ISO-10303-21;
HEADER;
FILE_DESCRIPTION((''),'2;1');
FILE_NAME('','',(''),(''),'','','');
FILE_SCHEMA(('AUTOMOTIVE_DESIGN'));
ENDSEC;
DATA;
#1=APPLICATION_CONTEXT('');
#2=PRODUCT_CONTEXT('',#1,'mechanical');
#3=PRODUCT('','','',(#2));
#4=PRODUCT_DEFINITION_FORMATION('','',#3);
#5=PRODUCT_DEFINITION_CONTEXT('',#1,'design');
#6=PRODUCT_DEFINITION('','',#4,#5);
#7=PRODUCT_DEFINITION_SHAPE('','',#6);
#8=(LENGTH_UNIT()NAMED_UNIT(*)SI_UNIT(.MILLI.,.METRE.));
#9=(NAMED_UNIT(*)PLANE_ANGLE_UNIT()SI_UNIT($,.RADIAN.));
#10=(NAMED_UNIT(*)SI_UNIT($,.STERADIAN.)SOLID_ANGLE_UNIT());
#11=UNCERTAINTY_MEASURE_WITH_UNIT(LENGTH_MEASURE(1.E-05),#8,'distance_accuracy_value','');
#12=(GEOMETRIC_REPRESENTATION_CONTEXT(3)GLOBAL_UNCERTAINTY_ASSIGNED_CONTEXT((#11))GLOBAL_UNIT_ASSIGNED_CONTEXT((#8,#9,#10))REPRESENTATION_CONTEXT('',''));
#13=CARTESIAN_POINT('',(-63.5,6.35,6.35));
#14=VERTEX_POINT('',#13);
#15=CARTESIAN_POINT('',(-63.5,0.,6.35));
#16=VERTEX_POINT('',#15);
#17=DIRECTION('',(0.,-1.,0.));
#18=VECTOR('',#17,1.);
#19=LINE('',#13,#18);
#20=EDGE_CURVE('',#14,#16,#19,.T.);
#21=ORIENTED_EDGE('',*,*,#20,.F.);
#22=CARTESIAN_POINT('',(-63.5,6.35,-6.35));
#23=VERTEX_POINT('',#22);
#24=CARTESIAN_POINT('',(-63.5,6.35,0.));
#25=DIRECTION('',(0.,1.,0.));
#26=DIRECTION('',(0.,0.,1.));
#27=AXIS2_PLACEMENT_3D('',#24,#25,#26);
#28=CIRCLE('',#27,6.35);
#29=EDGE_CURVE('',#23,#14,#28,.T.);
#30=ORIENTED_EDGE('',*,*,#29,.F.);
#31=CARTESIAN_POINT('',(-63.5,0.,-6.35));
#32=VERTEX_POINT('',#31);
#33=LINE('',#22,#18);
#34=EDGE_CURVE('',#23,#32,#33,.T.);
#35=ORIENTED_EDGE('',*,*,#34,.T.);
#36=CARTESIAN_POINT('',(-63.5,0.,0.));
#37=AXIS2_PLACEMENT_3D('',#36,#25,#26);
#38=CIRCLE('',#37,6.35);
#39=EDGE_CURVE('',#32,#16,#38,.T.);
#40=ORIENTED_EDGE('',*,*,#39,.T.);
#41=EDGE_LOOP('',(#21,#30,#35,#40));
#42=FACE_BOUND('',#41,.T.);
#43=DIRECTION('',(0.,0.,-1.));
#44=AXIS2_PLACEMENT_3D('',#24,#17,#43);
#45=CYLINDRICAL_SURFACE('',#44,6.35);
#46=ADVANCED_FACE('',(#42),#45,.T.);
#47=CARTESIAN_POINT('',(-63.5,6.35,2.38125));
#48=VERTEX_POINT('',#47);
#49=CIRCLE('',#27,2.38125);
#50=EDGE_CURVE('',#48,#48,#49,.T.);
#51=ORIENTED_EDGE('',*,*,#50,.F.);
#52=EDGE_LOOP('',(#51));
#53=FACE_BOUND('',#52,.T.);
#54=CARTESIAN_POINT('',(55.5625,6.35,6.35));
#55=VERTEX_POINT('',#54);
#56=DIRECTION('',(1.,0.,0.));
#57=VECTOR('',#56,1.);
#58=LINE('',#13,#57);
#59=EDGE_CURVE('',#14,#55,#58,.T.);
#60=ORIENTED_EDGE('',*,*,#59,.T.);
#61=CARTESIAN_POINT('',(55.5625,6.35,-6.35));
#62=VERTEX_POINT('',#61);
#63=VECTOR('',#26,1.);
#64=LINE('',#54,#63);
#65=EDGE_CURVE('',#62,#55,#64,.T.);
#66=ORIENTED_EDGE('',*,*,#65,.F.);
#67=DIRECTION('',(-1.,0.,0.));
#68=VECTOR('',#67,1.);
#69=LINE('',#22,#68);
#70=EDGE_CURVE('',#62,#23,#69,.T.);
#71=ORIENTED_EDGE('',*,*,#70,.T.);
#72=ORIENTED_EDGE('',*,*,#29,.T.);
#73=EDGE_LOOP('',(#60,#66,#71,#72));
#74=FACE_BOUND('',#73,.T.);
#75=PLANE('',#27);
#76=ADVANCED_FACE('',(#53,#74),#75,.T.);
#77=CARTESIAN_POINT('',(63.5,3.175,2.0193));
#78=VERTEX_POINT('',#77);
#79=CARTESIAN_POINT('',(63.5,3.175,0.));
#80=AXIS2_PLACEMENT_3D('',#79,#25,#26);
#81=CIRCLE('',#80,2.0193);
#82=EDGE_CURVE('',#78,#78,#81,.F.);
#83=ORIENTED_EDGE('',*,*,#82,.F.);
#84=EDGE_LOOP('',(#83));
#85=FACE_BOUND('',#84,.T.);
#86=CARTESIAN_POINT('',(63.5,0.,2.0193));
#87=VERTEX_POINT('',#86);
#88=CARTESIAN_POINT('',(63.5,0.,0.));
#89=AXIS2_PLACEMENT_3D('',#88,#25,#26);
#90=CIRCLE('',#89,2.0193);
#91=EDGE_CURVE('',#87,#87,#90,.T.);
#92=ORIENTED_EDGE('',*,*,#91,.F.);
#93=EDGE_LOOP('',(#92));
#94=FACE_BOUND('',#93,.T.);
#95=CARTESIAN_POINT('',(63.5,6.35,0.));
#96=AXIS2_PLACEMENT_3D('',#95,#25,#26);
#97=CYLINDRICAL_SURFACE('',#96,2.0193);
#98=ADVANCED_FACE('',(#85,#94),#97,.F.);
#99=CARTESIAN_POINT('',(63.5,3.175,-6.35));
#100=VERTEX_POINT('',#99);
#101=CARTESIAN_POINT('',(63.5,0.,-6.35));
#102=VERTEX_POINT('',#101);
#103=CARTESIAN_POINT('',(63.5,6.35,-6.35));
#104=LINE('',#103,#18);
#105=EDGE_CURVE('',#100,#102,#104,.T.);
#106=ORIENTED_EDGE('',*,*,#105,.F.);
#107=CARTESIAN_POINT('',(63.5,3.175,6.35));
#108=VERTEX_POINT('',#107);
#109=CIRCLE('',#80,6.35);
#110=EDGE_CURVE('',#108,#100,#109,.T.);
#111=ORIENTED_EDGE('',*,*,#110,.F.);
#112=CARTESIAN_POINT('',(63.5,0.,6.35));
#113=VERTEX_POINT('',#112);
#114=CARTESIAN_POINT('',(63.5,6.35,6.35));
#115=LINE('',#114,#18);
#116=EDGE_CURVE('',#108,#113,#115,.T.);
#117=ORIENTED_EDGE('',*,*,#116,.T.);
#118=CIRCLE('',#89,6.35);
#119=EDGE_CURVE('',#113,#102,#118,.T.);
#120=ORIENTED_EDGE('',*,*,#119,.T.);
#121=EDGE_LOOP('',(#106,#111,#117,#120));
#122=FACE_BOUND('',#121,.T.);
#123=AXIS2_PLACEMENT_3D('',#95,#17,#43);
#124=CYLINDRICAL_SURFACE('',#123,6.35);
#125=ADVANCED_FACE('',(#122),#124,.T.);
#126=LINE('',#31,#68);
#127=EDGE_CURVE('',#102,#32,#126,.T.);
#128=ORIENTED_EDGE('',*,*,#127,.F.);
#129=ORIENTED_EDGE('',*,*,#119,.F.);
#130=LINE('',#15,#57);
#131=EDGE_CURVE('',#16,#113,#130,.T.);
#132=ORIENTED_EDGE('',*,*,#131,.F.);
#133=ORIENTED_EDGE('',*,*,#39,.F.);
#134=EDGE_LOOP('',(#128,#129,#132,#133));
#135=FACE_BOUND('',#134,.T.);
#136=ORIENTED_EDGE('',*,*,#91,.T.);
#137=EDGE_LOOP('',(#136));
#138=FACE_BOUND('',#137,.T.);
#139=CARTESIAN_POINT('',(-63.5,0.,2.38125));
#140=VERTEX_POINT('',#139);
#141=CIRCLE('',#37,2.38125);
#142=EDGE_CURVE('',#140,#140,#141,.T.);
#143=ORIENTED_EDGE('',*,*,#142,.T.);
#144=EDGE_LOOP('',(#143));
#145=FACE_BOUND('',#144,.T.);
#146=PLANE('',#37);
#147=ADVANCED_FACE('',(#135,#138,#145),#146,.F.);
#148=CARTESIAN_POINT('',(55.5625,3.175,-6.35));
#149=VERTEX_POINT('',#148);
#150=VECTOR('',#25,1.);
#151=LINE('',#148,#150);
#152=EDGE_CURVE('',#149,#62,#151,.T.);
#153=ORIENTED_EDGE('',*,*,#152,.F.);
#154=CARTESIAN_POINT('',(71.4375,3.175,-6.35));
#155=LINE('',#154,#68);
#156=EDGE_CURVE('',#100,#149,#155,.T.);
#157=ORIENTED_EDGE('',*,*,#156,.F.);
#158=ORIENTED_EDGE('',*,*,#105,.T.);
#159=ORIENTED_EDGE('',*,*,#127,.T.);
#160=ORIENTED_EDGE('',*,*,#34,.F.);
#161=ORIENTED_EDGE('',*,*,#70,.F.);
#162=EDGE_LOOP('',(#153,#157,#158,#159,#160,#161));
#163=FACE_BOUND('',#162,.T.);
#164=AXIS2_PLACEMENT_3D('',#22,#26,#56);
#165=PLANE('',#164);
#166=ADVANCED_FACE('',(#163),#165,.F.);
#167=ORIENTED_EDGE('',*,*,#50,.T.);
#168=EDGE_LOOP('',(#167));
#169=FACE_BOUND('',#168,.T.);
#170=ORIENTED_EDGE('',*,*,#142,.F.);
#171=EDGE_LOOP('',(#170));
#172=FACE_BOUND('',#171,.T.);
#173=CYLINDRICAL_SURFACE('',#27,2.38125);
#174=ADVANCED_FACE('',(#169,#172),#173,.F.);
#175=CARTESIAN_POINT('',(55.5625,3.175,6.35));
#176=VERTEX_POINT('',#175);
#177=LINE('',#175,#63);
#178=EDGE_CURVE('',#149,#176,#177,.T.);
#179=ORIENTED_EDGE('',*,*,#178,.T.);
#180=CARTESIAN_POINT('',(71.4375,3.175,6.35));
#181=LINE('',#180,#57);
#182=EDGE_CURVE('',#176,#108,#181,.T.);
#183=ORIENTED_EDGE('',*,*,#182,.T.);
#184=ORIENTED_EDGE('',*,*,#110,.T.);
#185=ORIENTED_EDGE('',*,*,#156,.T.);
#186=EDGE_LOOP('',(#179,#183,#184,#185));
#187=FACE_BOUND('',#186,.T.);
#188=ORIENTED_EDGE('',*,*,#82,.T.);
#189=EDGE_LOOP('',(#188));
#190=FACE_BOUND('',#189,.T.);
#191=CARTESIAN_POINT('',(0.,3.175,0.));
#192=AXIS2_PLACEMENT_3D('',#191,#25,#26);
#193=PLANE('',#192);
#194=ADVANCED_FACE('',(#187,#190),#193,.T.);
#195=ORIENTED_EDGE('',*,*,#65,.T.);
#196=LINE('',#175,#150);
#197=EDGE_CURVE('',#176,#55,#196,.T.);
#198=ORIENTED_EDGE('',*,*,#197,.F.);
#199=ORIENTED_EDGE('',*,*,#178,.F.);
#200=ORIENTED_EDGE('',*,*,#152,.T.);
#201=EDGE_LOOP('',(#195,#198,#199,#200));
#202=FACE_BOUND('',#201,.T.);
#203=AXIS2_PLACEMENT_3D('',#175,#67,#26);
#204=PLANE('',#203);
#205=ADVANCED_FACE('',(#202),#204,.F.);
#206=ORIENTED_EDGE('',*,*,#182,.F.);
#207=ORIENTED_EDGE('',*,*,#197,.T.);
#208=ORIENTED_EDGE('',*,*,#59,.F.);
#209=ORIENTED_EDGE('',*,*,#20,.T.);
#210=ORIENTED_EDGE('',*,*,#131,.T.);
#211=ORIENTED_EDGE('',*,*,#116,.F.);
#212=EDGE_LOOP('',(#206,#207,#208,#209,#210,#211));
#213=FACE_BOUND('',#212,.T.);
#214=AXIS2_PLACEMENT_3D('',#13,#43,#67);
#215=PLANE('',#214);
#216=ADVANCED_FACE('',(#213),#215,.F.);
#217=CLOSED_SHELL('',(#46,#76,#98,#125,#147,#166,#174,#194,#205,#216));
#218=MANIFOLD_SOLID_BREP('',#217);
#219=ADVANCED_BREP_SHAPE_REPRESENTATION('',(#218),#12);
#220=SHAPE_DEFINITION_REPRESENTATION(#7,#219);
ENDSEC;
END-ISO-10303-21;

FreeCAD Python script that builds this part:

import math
import FreeCAD as App
import Part
import Sketcher
from FreeCAD import Vector
Q = App.Units.Quantity


def add_polygon(sketch, points):
    """Adds a closed chain of lines whose ends are joined by coincident constraints."""
    first, n = sketch.GeometryCount, len(points)
    for a, b in zip(points, points[1:] + points[:1]):
        sketch.addGeometry(Part.LineSegment(App.Vector(*a, 0), App.Vector(*b, 0)), False)
    for i in range(n):
        sketch.addConstraint(Sketcher.Constraint("Coincident", first + i, 2, first + (i + 1) % n, 1))

doc = App.newDocument("Part")
body = doc.addObject("PartDesign::Body", "Body")

sketch1 = body.newObject("Sketcher::SketchObject", "Sketch")
sketch1.AttachmentSupport = (doc.getObject("XZ_Plane"), [""])
sketch1.MapMode = "FlatFace"
sketch1.addGeometry(Part.LineSegment(Vector(63.5, -6.35, 0), Vector(-63.5, -6.35, 0)), False)
sketch1.addGeometry(Part.ArcOfCircle(Part.Circle(Vector(-63.5, 0, 0), Vector(0, 0, 1), 6.35), math.radians(90), math.radians(270)), False)
sketch1.addGeometry(Part.LineSegment(Vector(-63.5, 6.35, 0), Vector(63.5, 6.35, 0)), False)
sketch1.addGeometry(Part.ArcOfCircle(Part.Circle(Vector(63.5, 0, 0), Vector(0, 0, 1), 6.35), math.radians(-90), math.radians(90)), False)
sketch1.addConstraint(Sketcher.Constraint("Tangent", 0, 2, 1, 2))
sketch1.addConstraint(Sketcher.Constraint("Tangent", 1, 1, 2, 1))
sketch1.addConstraint(Sketcher.Constraint("Tangent", 2, 2, 3, 2))
sketch1.addConstraint(Sketcher.Constraint("Tangent", 3, 1, 0, 1))
sketch1.addConstraint(Sketcher.Constraint("Horizontal", 0))
sketch1.addConstraint(Sketcher.Constraint("Horizontal", 2))
sketch1.addConstraint(Sketcher.Constraint("Symmetric", 1, 3, 3, 3, -1, 1))
sketch1.addConstraint(Sketcher.Constraint("DistanceX", 0, 2, 0, 1, Q("5 in")))
sketch1.addConstraint(Sketcher.Constraint("Radius", 1, Q("0.25 in")))
pad1 = body.newObject("PartDesign::Pad", "Pad")
pad1.Profile = sketch1
pad1.Length = Q("0.25 in")
pad1.Reversed = True

sketch2 = body.newObject("Sketcher::SketchObject", "Sketch001")
sketch2.AttachmentSupport = (doc.getObject("XZ_Plane"), [""])
sketch2.MapMode = "FlatFace"
sketch2.AttachmentOffset = App.Placement(Vector(0, 0, -0.25 * 25.4), App.Rotation())
sketch2.addGeometry(Part.Circle(Vector(-63.5, 0, 0), Vector(0, 0, 1), 2.38125), False)
sketch2.addConstraint(Sketcher.Constraint("PointOnObject", 0, 3, -1))
sketch2.addConstraint(Sketcher.Constraint("Diameter", 0, Q("0.1875 in")))
sketch2.addConstraint(Sketcher.Constraint("DistanceX", 0, 3, -1, 1, Q("2.5 in")))
doc.recompute()
hole = body.newObject("PartDesign::Hole", "Hole")
hole.Profile = sketch2
hole.ThreadType = "None"
hole.Diameter = Q("0.1875 in")
hole.DepthType = "ThroughAll"
hole.Reversed = True

sketch3 = body.newObject("Sketcher::SketchObject", "Sketch002")
sketch3.AttachmentSupport = (doc.getObject("XZ_Plane"), [""])
sketch3.MapMode = "FlatFace"
sketch3.AttachmentOffset = App.Placement(Vector(0, 0, -0.25 * 25.4), App.Rotation())
sketch3.addGeometry(Part.Circle(Vector(63.5, 0, 0), Vector(0, 0, 1), 2.0193), False)
sketch3.addConstraint(Sketcher.Constraint("PointOnObject", 0, 3, -1))
sketch3.addConstraint(Sketcher.Constraint("Diameter", 0, Q("0.159 in")))
sketch3.addConstraint(Sketcher.Constraint("DistanceX", -1, 1, 0, 3, Q("2.5 in")))
doc.recompute()
hole2 = body.newObject("PartDesign::Hole", "Hole001")
hole2.Profile = sketch3
hole2.ThreadType = "None"
hole2.Diameter = Q("0.159 in")
hole2.DepthType = "ThroughAll"
hole2.Reversed = True

sketch4 = body.newObject("Sketcher::SketchObject", "Sketch003")
sketch4.AttachmentSupport = (doc.getObject("XZ_Plane"), [""])
sketch4.MapMode = "FlatFace"
sketch4.AttachmentOffset = App.Placement(Vector(0, 0, -0.25 * 25.4), App.Rotation())
add_polygon(sketch4, [(55.5625, -6.35), (55.5625, 6.35), (71.4375, 6.35), (71.4375, -6.35)])
sketch4.addConstraint(Sketcher.Constraint("Vertical", 0))
sketch4.addConstraint(Sketcher.Constraint("Horizontal", 1))
sketch4.addConstraint(Sketcher.Constraint("Vertical", 2))
sketch4.addConstraint(Sketcher.Constraint("Horizontal", 3))
sketch4.addConstraint(Sketcher.Constraint("DistanceY", 0, 1, 0, 2, Q("0.5 in")))
sketch4.addConstraint(Sketcher.Constraint("DistanceX", 1, 1, 1, 2, Q("0.625 in")))
sketch4.addConstraint(Sketcher.Constraint("DistanceY", -1, 1, 0, 2, Q("0.25 in")))
sketch4.addConstraint(Sketcher.Constraint("DistanceX", -1, 1, 0, 2, Q("2.1875 in")))
pocket1 = body.newObject("PartDesign::Pocket", "Pocket")
pocket1.Profile = sketch4
pocket1.Length = Q("0.125 in")
pocket1.Reversed = True

doc.recompute()
